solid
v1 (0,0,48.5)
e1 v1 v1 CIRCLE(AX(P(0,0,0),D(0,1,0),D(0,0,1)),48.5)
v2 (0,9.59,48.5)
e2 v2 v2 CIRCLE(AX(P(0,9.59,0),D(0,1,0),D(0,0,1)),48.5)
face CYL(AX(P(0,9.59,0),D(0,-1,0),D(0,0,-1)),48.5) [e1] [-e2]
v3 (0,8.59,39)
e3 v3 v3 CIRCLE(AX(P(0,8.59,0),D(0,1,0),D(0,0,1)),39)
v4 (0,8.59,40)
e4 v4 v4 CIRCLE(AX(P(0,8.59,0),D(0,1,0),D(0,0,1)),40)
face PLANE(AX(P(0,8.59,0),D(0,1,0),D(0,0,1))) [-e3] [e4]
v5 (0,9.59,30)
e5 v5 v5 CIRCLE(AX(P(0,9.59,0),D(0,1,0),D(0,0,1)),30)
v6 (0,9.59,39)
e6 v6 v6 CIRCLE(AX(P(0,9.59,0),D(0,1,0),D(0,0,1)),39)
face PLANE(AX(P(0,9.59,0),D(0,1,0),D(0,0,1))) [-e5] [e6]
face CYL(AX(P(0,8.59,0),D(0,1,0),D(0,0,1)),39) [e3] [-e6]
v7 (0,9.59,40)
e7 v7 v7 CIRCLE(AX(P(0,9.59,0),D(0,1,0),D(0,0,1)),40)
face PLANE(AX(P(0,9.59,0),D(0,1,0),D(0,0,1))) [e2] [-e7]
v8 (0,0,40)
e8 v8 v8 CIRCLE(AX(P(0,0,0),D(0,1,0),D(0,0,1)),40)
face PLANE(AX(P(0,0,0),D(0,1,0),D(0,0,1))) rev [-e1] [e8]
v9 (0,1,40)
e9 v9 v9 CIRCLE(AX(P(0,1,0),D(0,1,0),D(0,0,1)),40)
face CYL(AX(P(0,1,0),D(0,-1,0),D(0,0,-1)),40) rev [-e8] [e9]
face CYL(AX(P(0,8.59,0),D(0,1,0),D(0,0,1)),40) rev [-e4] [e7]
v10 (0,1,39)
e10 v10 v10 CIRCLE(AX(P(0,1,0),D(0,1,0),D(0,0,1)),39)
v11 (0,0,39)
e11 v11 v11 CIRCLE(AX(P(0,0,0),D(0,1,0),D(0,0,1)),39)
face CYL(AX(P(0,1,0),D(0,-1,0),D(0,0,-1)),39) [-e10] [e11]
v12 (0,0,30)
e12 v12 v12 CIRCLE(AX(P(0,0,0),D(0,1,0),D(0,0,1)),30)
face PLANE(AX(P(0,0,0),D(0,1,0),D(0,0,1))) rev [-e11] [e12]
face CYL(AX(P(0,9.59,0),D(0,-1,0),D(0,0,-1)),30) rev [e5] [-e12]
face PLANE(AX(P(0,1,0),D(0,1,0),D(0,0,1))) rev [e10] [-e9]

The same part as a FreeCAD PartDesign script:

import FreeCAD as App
import Part
import Sketcher

V = App.Vector

doc = App.newDocument("Part")
body = doc.addObject("PartDesign::Body", "Body")

# Sketch on XZ plane
sketch1 = doc.addObject("Sketcher::SketchObject", "Sketch")
body.addObject(sketch1)
sketch1.AttachmentSupport = (doc.XZ_Plane, [""])
sketch1.MapMode = "FlatFace"
sketch1.addGeometry(Part.Circle(V(0, 0, 0), V(0, 0, 1), 48), False)
sketch1.addGeometry(Part.Circle(V(0, 0, 0), V(0, 0, 1), 30), False)
sketch1.addConstraint(Sketcher.Constraint("Coincident", 0, 3, -1, 1))
sketch1.addConstraint(Sketcher.Constraint("Coincident", 1, 3, -1, 1))
sketch1.addConstraint(Sketcher.Constraint("Diameter", 0, 97.0))
sketch1.addConstraint(Sketcher.Constraint("Diameter", 1, 60.0))
pad1 = doc.addObject("PartDesign::Pad", "Pad")
body.addObject(pad1)
pad1.Profile = sketch1
pad1.Length = 9.59
pad1.Reversed = True

# Sketch on XZ plane
sketch2 = doc.addObject("Sketcher::SketchObject", "Sketch001")
body.addObject(sketch2)
sketch2.AttachmentSupport = (doc.XZ_Plane, [""])
sketch2.MapMode = "FlatFace"
sketch2.addGeometry(Part.Circle(V(0, 0, 0), V(0, 0, 1), 40), False)
sketch2.addGeometry(Part.Circle(V(0, 0, 0), V(0, 0, 1), 39), False)
sketch2.addConstraint(Sketcher.Constraint("Coincident", 0, 3, -1, 1))
sketch2.addConstraint(Sketcher.Constraint("Coincident", 1, 3, -1, 1))
sketch2.addConstraint(Sketcher.Constraint("Diameter", 0, 80.0))
sketch2.addConstraint(Sketcher.Constraint("Diameter", 1, 78.0))
pocket1 = doc.addObject("PartDesign::Pocket", "Pocket")
body.addObject(pocket1)
pocket1.Profile = sketch2
pocket1.Length = 1

# Sketch on XZ plane
sketch3 = doc.addObject("Sketcher::SketchObject", "Sketch002")
body.addObject(sketch3)
sketch3.AttachmentSupport = (doc.XZ_Plane, [""])
sketch3.MapMode = "FlatFace"
sketch3.AttachmentOffset = App.Placement(V(0, 0, -8.59), App.Rotation())
sketch3.addGeometry(Part.Circle(V(0, 0, 0), V(0, 0, 1), 40), False)
sketch3.addGeometry(Part.Circle(V(0, 0, 0), V(0, 0, 1), 39), False)
sketch3.addConstraint(Sketcher.Constraint("Coincident", 0, 3, -1, 1))
sketch3.addConstraint(Sketcher.Constraint("Coincident", 1, 3, -1, 1))
sketch3.addConstraint(Sketcher.Constraint("Diameter", 0, 80.0))
sketch3.addConstraint(Sketcher.Constraint("Diameter", 1, 78.0))
pocket2 = doc.addObject("PartDesign::Pocket", "Pocket001")
body.addObject(pocket2)
pocket2.Profile = sketch3
pocket2.Length = 1

doc.recompute()
